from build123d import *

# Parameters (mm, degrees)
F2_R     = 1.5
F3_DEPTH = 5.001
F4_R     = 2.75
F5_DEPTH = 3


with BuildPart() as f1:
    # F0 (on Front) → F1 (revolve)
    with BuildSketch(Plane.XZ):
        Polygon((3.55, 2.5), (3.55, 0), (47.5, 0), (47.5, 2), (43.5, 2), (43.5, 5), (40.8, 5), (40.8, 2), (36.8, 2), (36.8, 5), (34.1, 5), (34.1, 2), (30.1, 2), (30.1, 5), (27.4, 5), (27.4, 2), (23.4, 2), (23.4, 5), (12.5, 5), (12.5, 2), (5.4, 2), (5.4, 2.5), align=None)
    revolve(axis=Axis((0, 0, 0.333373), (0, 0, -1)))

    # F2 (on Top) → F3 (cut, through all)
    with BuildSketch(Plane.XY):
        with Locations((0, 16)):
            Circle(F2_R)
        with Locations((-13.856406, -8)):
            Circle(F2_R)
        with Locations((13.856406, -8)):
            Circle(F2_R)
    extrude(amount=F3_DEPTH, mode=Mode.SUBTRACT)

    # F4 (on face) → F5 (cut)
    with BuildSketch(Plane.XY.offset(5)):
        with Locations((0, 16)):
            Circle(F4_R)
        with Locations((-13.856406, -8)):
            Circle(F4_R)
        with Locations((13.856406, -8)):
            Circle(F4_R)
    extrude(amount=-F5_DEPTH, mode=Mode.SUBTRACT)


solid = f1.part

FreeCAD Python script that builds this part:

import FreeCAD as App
import Part
import Sketcher

V = App.Vector

doc = App.newDocument("Part")
body = doc.addObject("PartDesign::Body", "Body")

sketch1 = body.newObject("Sketcher::SketchObject", "Sketch")
sketch1.AttachmentSupport = (doc.getObject("XZ_Plane"), [""])
sketch1.MapMode = "FlatFace"
sketch1.addGeometry([
    Part.LineSegment(V(3.5, 2.5, 0), V(3.5, 0, 0)),
    Part.LineSegment(V(3.5, 0, 0), V(47.5, 0, 0)),
    Part.LineSegment(V(47.5, 0, 0), V(47.5, 2, 0)),
    Part.LineSegment(V(47.5, 2, 0), V(43.5, 2, 0)),
    Part.LineSegment(V(43.5, 2, 0), V(43.5, 5, 0)),
    Part.LineSegment(V(43.5, 5, 0), V(40.8, 5, 0)),
    Part.LineSegment(V(40.8, 5, 0), V(40.8, 2, 0)),
    Part.LineSegment(V(40.8, 2, 0), V(36.8, 2, 0)),
    Part.LineSegment(V(36.8, 2, 0), V(36.8, 5, 0)),
    Part.LineSegment(V(36.8, 5, 0), V(34.1, 5, 0)),
    Part.LineSegment(V(34.1, 5, 0), V(34.1, 2, 0)),
    Part.LineSegment(V(34.1, 2, 0), V(30.1, 2, 0)),
    Part.LineSegment(V(30.1, 2, 0), V(30.1, 5, 0)),
    Part.LineSegment(V(30.1, 5, 0), V(27.4, 5, 0)),
    Part.LineSegment(V(27.4, 5, 0), V(27.4, 2, 0)),
    Part.LineSegment(V(27.4, 2, 0), V(23.4, 2, 0)),
    Part.LineSegment(V(23.4, 2, 0), V(23.4, 5, 0)),
    Part.LineSegment(V(23.4, 5, 0), V(12.5, 5, 0)),
    Part.LineSegment(V(12.5, 5, 0), V(12.5, 2, 0)),
    Part.LineSegment(V(12.5, 2, 0), V(5.4, 2, 0)),
    Part.LineSegment(V(5.4, 2, 0), V(5.4, 2.5, 0)),
    Part.LineSegment(V(5.4, 2.5, 0), V(3.5, 2.5, 0)),
], False)
sketch1.addConstraint([
    Sketcher.Constraint("Coincident", 0, 2, 1, 1),
    Sketcher.Constraint("Coincident", 1, 2, 2, 1),
    Sketcher.Constraint("Coincident", 2, 2, 3, 1),
    Sketcher.Constraint("Coincident", 3, 2, 4, 1),
    Sketcher.Constraint("Coincident", 4, 2, 5, 1),
    Sketcher.Constraint("Coincident", 5, 2, 6, 1),
    Sketcher.Constraint("Coincident", 6, 2, 7, 1),
    Sketcher.Constraint("Coincident", 7, 2, 8, 1),
    Sketcher.Constraint("Coincident", 8, 2, 9, 1),
    Sketcher.Constraint("Coincident", 9, 2, 10, 1),
    Sketcher.Constraint("Coincident", 10, 2, 11, 1),
    Sketcher.Constraint("Coincident", 11, 2, 12, 1),
    Sketcher.Constraint("Coincident", 12, 2, 13, 1),
    Sketcher.Constraint("Coincident", 13, 2, 14, 1),
    Sketcher.Constraint("Coincident", 14, 2, 15, 1),
    Sketcher.Constraint("Coincident", 15, 2, 16, 1),
    Sketcher.Constraint("Coincident", 16, 2, 17, 1),
    Sketcher.Constraint("Coincident", 17, 2, 18, 1),
    Sketcher.Constraint("Coincident", 18, 2, 19, 1),
    Sketcher.Constraint("Coincident", 19, 2, 20, 1),
    Sketcher.Constraint("Coincident", 20, 2, 21, 1),
    Sketcher.Constraint("Coincident", 21, 2, 0, 1),
    Sketcher.Constraint("Vertical", 0),
    Sketcher.Constraint("Horizontal", 1),
    Sketcher.Constraint("Vertical", 2),
    Sketcher.Constraint("Horizontal", 3),
    Sketcher.Constraint("Vertical", 4),
    Sketcher.Constraint("Horizontal", 5),
    Sketcher.Constraint("Vertical", 6),
    Sketcher.Constraint("Horizontal", 7),
    Sketcher.Constraint("Vertical", 8),
    Sketcher.Constraint("Horizontal", 9),
    Sketcher.Constraint("Vertical", 10),
    Sketcher.Constraint("Horizontal", 11),
    Sketcher.Constraint("Vertical", 12),
    Sketcher.Constraint("Horizontal", 13),
    Sketcher.Constraint("Vertical", 14),
    Sketcher.Constraint("Horizontal", 15),
    Sketcher.Constraint("Vertical", 16),
    Sketcher.Constraint("Horizontal", 17),
    Sketcher.Constraint("Vertical", 18),
    Sketcher.Constraint("Horizontal", 19),
    Sketcher.Constraint("Vertical", 20),
    Sketcher.Constraint("Horizontal", 21),
    Sketcher.Constraint("PointOnObject", 0, 2, -1),
    Sketcher.Constraint("Horizontal", 3, 2, 6, 2),
    Sketcher.Constraint("Horizontal", 5, 2, 8, 2),
    Sketcher.Constraint("Horizontal", 7, 2, 10, 2),
    Sketcher.Constraint("Horizontal", 9, 2, 12, 2),
    Sketcher.Constraint("Horizontal", 11, 2, 14, 2),
    Sketcher.Constraint("Horizontal", 13, 2, 16, 2),
    Sketcher.Constraint("Horizontal", 15, 2, 18, 2),
    Sketcher.Constraint("Equal", 3, 7),
    Sketcher.Constraint("Equal", 5, 9),
    Sketcher.Constraint("Equal", 7, 11),
    Sketcher.Constraint("Equal", 9, 13),
    Sketcher.Constraint("Equal", 11, 15),
    Sketcher.Constraint("DistanceX", 3, 2, 3, 1, 4.0),
    Sketcher.Constraint("DistanceY", 2, 1, 2, 2, 2.0),
    Sketcher.Constraint("DistanceY", 4, 1, 4, 2, 3.0),
    Sketcher.Constraint("DistanceX", 5, 2, 5, 1, 2.7),
    Sketcher.Constraint("DistanceX", 17, 2, 17, 1, 10.9),
    Sketcher.Constraint("DistanceX", 19, 2, 19, 1, 7.1),
    Sketcher.Constraint("DistanceY", 0, 2, 0, 1, 2.5),
    Sketcher.Constraint("DistanceX", 1, 1, 1, 2, 43.95),
    Sketcher.Constraint("DistanceX", -1, 1, 1, 2, 47.5),
])
revolution = body.newObject("PartDesign::Revolution", "Revolution")
revolution.Profile = sketch1
revolution.ReferenceAxis = (sketch1, ["V_Axis"])
revolution.Angle = 360

sketch2 = body.newObject("Sketcher::SketchObject", "Sketch001")
sketch2.AttachmentSupport = (doc.getObject("XY_Plane"), [""])
sketch2.MapMode = "FlatFace"
sketch2.addGeometry([
    Part.Circle(V(0, 16, 0), V(0, 0, 1), 1.5),
    Part.Circle(V(-13.9, -8, 0), V(0, 0, 1), 1.5),
    Part.Circle(V(13.9, -8, 0), V(0, 0, 1), 1.5),
], False)
sketch2.addConstraint([
    Sketcher.Constraint("Equal", 0, 1),
    Sketcher.Constraint("Equal", 1, 2),
    Sketcher.Constraint("Symmetric", 1, 3, 2, 3, -2),
    Sketcher.Constraint("PointOnObject", 0, 3, -2),
    Sketcher.Constraint("Diameter", 0, 3.0),
    Sketcher.Constraint("DistanceY", -1, 1, 0, 3, 16.0),
    Sketcher.Constraint("DistanceY", 1, 3, -1, 1, 8.0),
    Sketcher.Constraint("DistanceX", 1, 3, 2, 3, 27.712812),
])
pocket1 = body.newObject("PartDesign::Pocket", "Pocket")
pocket1.Profile = sketch2
pocket1.Type = "ThroughAll"
pocket1.Reversed = True

sketch3 = body.newObject("Sketcher::SketchObject", "Sketch002")
sketch3.AttachmentSupport = (doc.getObject("XY_Plane"), [""])
sketch3.MapMode = "FlatFace"
sketch3.AttachmentOffset = App.Placement(V(0, 0, 5), App.Rotation())
sketch3.addGeometry([
    Part.Circle(V(0, 16, 0), V(0, 0, 1), 2.8),
    Part.Circle(V(-13.9, -8, 0), V(0, 0, 1), 2.8),
    Part.Circle(V(13.9, -8, 0), V(0, 0, 1), 2.8),
], False)
sketch3.addConstraint([
    Sketcher.Constraint("Equal", 0, 1),
    Sketcher.Constraint("Equal", 1, 2),
    Sketcher.Constraint("Symmetric", 1, 3, 2, 3, -2),
    Sketcher.Constraint("PointOnObject", 0, 3, -2),
    Sketcher.Constraint("Diameter", 0, 5.5),
    Sketcher.Constraint("DistanceY", -1, 1, 0, 3, 16.0),
    Sketcher.Constraint("DistanceY", 1, 3, -1, 1, 8.0),
    Sketcher.Constraint("DistanceX", 1, 3, 2, 3, 27.712812),
])
pocket2 = body.newObject("PartDesign::Pocket", "Pocket001")
pocket2.Profile = sketch3
pocket2.Length = 3

doc.recompute()
